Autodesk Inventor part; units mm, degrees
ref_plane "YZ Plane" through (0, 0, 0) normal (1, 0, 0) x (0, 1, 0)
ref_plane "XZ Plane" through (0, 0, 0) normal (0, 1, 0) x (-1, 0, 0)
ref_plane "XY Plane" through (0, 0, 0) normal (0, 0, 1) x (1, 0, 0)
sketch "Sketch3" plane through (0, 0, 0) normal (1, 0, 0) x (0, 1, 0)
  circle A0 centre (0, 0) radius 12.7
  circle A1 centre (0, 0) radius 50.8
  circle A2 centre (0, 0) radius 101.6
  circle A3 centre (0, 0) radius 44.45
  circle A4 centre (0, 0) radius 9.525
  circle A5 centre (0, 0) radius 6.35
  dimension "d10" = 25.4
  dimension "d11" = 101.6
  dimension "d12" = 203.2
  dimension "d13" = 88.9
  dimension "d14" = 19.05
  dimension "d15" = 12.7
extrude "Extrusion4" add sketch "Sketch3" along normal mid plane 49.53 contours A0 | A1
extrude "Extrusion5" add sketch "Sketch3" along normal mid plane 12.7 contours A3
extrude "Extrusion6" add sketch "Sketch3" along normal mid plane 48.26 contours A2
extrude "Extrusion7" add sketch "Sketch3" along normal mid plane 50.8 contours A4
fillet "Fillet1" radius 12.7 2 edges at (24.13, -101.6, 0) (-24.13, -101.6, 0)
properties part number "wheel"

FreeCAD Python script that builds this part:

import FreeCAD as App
import Part
import Sketcher

V = App.Vector
Q = App.Units.Quantity


def edges_at(feature, points):
    """Names of the edges that pass closest to the given points."""
    edges = feature.Shape.Edges
    near = lambda p: min(range(len(edges)), key=lambda i: edges[i].distToShape(Part.Vertex(*p))[0])
    return sorted({f"Edge{near(p) + 1}" for p in points})

doc = App.newDocument("Part")
params = doc.addObject("Spreadsheet::Sheet", "Params")
for row, (alias, value) in enumerate([
    ("sketch1_diameter", "1 in"),
    ("sketch1_diameter2", "4 in"),
    ("sketch1_diameter3", "3.5 in"),
    ("sketch1_diameter4", "0.75 in"),
    ("pad1_length", "1.95 in"),
    ("sketch2_diameter", "1 in"),
    ("sketch2_diameter2", "3.5 in"),
    ("pad2_length", "0.5 in"),
    ("sketch3_diameter", "8 in"),
    ("sketch3_diameter2", "4 in"),
    ("pad3_length", "1.9 in"),
    ("sketch4_diameter", "0.5 in"),
    ("sketch4_diameter2", "0.75 in"),
    ("pad4_length", "2 in"),
    ("fillet_radius", "0.5 in"),
], start=1):
    params.set(f"A{row}", alias)
    params.set(f"B{row}", "=" + value)
    params.setAlias(f"B{row}", alias)

body = doc.addObject("PartDesign::Body", "Body")
body.AllowCompound = True

# Sketch on YZ plane
sketch1 = doc.addObject("Sketcher::SketchObject", "Sketch")
body.addObject(sketch1)
sketch1.AttachmentSupport = (doc.YZ_Plane, [""])
sketch1.MapMode = "FlatFace"
sketch1.addGeometry([
    Part.Circle(V(0, 0, 0), V(0, 0, 1), 13),
    Part.Circle(V(0, 0, 0), V(0, 0, 1), 10),
    Part.Circle(V(0, 0, 0), V(0, 0, 1), 51),
    Part.Circle(V(0, 0, 0), V(0, 0, 1), 44),
], False)
sketch1.addConstraint([
    Sketcher.Constraint("Coincident", 0, 3, -1, 1),
    Sketcher.Constraint("Coincident", 1, 3, -1, 1),
    Sketcher.Constraint("Coincident", 2, 3, -1, 1),
    Sketcher.Constraint("Coincident", 3, 3, -1, 1),
    Sketcher.Constraint("Diameter", 0, Q("1 in")),
    Sketcher.Constraint("Diameter", 2, Q("4 in")),
    Sketcher.Constraint("Diameter", 3, Q("3.5 in")),
    Sketcher.Constraint("Diameter", 1, Q("0.75 in")),
])
sketch1.setExpression("Constraints[4]", "Params.sketch1_diameter")
sketch1.setExpression("Constraints[5]", "Params.sketch1_diameter2")
sketch1.setExpression("Constraints[6]", "Params.sketch1_diameter3")
sketch1.setExpression("Constraints[7]", "Params.sketch1_diameter4")
pad1 = doc.addObject("PartDesign::Pad", "Pad")
body.addObject(pad1)
pad1.Profile = sketch1
pad1.setExpression("Length", "Params.pad1_length")
pad1.Midplane = True

# Sketch on YZ plane
sketch2 = doc.addObject("Sketcher::SketchObject", "Sketch001")
body.addObject(sketch2)
sketch2.AttachmentSupport = (doc.YZ_Plane, [""])
sketch2.MapMode = "FlatFace"
sketch2.addGeometry([
    Part.Circle(V(0, 0, 0), V(0, 0, 1), 44),
    Part.Circle(V(0, 0, 0), V(0, 0, 1), 13),
], False)
sketch2.addConstraint([
    Sketcher.Constraint("Coincident", 0, 3, -1, 1),
    Sketcher.Constraint("Coincident", 1, 3, -1, 1),
    Sketcher.Constraint("Diameter", 1, Q("1 in")),
    Sketcher.Constraint("Diameter", 0, Q("3.5 in")),
])
sketch2.setExpression("Constraints[2]", "Params.sketch2_diameter")
sketch2.setExpression("Constraints[3]", "Params.sketch2_diameter2")
pad2 = doc.addObject("PartDesign::Pad", "Pad001")
body.addObject(pad2)
pad2.Profile = sketch2
pad2.setExpression("Length", "Params.pad2_length")
pad2.Midplane = True

# Sketch on YZ plane
sketch3 = doc.addObject("Sketcher::SketchObject", "Sketch002")
body.addObject(sketch3)
sketch3.AttachmentSupport = (doc.YZ_Plane, [""])
sketch3.MapMode = "FlatFace"
sketch3.addGeometry([
    Part.Circle(V(0, 0, 0), V(0, 0, 1), 102),
    Part.Circle(V(0, 0, 0), V(0, 0, 1), 51),
], False)
sketch3.addConstraint([
    Sketcher.Constraint("Coincident", 0, 3, -1, 1),
    Sketcher.Constraint("Coincident", 1, 3, -1, 1),
    Sketcher.Constraint("Diameter", 0, Q("8 in")),
    Sketcher.Constraint("Diameter", 1, Q("4 in")),
])
sketch3.setExpression("Constraints[2]", "Params.sketch3_diameter")
sketch3.setExpression("Constraints[3]", "Params.sketch3_diameter2")
pad3 = doc.addObject("PartDesign::Pad", "Pad002")
body.addObject(pad3)
pad3.Profile = sketch3
pad3.setExpression("Length", "Params.pad3_length")
pad3.Midplane = True

# Sketch on YZ plane
sketch4 = doc.addObject("Sketcher::SketchObject", "Sketch003")
body.addObject(sketch4)
sketch4.AttachmentSupport = (doc.YZ_Plane, [""])
sketch4.MapMode = "FlatFace"
sketch4.addGeometry([
    Part.Circle(V(0, 0, 0), V(0, 0, 1), 10),
    Part.Circle(V(0, 0, 0), V(0, 0, 1), 6),
], False)
sketch4.addConstraint([
    Sketcher.Constraint("Coincident", 0, 3, -1, 1),
    Sketcher.Constraint("Coincident", 1, 3, -1, 1),
    Sketcher.Constraint("Diameter", 1, Q("0.5 in")),
    Sketcher.Constraint("Diameter", 0, Q("0.75 in")),
])
sketch4.setExpression("Constraints[2]", "Params.sketch4_diameter")
sketch4.setExpression("Constraints[3]", "Params.sketch4_diameter2")
pad4 = doc.addObject("PartDesign::Pad", "Pad003")
body.addObject(pad4)
pad4.Profile = sketch4
pad4.setExpression("Length", "Params.pad4_length")
pad4.Midplane = True
doc.recompute()

fillet = doc.addObject("PartDesign::Fillet", "Fillet")
body.addObject(fillet)
fillet.Base = (pad4, edges_at(pad4, [(24.13, -101.6, 0), (-24.13, -101.6, 0)]))
fillet.setExpression("Radius", "Params.fillet_radius")

doc.recompute()
